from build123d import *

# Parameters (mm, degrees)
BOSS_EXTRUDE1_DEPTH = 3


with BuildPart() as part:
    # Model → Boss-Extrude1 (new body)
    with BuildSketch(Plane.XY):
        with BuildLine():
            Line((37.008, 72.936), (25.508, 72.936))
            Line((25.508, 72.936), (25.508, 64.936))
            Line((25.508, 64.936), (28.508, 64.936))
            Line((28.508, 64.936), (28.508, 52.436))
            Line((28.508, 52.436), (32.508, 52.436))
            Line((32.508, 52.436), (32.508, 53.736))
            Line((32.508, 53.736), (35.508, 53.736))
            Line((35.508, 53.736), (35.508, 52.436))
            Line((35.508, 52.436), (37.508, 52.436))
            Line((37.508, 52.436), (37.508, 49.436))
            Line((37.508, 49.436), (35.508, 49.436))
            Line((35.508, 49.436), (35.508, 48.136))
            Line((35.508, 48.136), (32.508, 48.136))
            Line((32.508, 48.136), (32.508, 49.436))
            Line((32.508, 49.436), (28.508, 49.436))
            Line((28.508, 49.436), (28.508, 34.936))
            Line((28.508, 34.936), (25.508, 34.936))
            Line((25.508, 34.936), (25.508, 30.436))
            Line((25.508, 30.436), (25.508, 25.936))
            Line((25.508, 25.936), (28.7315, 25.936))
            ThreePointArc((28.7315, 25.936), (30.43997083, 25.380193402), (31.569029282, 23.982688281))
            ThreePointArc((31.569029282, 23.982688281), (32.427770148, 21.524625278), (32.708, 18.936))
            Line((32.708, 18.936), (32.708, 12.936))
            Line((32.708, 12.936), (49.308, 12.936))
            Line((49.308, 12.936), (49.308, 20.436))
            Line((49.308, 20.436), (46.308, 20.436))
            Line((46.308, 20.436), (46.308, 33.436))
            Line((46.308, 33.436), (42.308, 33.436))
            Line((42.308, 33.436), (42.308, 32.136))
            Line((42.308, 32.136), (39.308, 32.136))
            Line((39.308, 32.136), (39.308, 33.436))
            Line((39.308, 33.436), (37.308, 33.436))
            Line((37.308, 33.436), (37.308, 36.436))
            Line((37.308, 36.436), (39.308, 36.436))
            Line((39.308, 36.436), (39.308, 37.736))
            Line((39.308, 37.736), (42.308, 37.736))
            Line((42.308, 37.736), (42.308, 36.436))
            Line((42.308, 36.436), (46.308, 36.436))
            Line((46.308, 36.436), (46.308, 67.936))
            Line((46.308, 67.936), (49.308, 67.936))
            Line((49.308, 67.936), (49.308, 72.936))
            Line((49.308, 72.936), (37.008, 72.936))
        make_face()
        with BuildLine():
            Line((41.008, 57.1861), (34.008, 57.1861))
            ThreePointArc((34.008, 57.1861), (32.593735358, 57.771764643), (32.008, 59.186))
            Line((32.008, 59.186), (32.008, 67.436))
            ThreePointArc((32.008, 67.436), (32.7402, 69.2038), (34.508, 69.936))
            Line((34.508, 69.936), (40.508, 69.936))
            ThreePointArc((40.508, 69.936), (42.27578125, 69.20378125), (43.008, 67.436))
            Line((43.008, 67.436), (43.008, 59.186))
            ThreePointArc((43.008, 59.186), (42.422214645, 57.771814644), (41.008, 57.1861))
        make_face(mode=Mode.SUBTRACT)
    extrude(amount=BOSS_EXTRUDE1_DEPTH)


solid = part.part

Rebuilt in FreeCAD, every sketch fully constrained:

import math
import FreeCAD as App
import Part
import Sketcher

doc = App.newDocument("Part")
params = doc.addObject("Spreadsheet::Sheet", "Params")
for row, (alias, value) in enumerate([
    ("sketch1_width", "3 mm"),
    ("sketch1_width2", "4 mm"),
    ("sketch1_width3", "2 mm"),
    ("sketch1_width4", "7 mm"),
    ("sketch1_width5", "6 mm"),
    ("pad1_length", "3 mm"),
], start=1):
    params.set(f"A{row}", alias)
    params.set(f"B{row}", "=" + value)
    params.setAlias(f"B{row}", alias)

body = doc.addObject("PartDesign::Body", "Body")

sketch1 = body.newObject("Sketcher::SketchObject", "Sketch")
sketch1.AttachmentSupport = (doc.getObject("XY_Plane"), [""])
sketch1.MapMode = "FlatFace"
sketch1.addGeometry(Part.LineSegment(App.Vector(25.5, 72.9, 0), App.Vector(25.5, 64.9, 0)), False)
sketch1.addGeometry(Part.LineSegment(App.Vector(25.5, 64.9, 0), App.Vector(28.5, 64.9, 0)), False)
sketch1.addGeometry(Part.LineSegment(App.Vector(28.5, 64.9, 0), App.Vector(28.5, 52.4, 0)), False)
sketch1.addGeometry(Part.LineSegment(App.Vector(28.5, 52.4, 0), App.Vector(32.5, 52.4, 0)), False)
sketch1.addGeometry(Part.LineSegment(App.Vector(32.5, 52.4, 0), App.Vector(32.5, 53.7, 0)), False)
sketch1.addGeometry(Part.LineSegment(App.Vector(32.5, 53.7, 0), App.Vector(35.5, 53.7, 0)), False)
sketch1.addGeometry(Part.LineSegment(App.Vector(35.5, 53.7, 0), App.Vector(35.5, 52.4, 0)), False)
sketch1.addGeometry(Part.LineSegment(App.Vector(35.5, 52.4, 0), App.Vector(37.5, 52.4, 0)), False)
sketch1.addGeometry(Part.LineSegment(App.Vector(37.5, 52.4, 0), App.Vector(37.5, 49.4, 0)), False)
sketch1.addGeometry(Part.LineSegment(App.Vector(37.5, 49.4, 0), App.Vector(35.5, 49.4, 0)), False)
sketch1.addGeometry(Part.LineSegment(App.Vector(35.5, 49.4, 0), App.Vector(35.5, 48.1, 0)), False)
sketch1.addGeometry(Part.LineSegment(App.Vector(35.5, 48.1, 0), App.Vector(32.5, 48.1, 0)), False)
sketch1.addGeometry(Part.LineSegment(App.Vector(32.5, 48.1, 0), App.Vector(32.5, 49.4, 0)), False)
sketch1.addGeometry(Part.LineSegment(App.Vector(32.5, 49.4, 0), App.Vector(28.5, 49.4, 0)), False)
sketch1.addGeometry(Part.LineSegment(App.Vector(28.5, 49.4, 0), App.Vector(28.5, 34.9, 0)), False)
sketch1.addGeometry(Part.LineSegment(App.Vector(28.5, 34.9, 0), App.Vector(25.5, 34.9, 0)), False)
sketch1.addGeometry(Part.LineSegment(App.Vector(25.5, 34.9, 0), App.Vector(25.5, 25.9, 0)), False)
sketch1.addGeometry(Part.LineSegment(App.Vector(25.5, 25.9, 0), App.Vector(28.7, 25.9, 0)), False)
sketch1.addGeometry(Part.ArcOfCircle(Part.Circle(App.Vector(28.6, 22.8, 0), App.Vector(0, 0, 1), 3.2), math.radians(22), math.radians(89)), False)
sketch1.addGeometry(Part.ArcOfCircle(Part.Circle(App.Vector(21.3, 19, 0), App.Vector(0, 0, 1), 11.4), math.radians(0), math.radians(26)), False)
sketch1.addGeometry(Part.LineSegment(App.Vector(32.7, 18.9, 0), App.Vector(32.7, 12.9, 0)), False)
sketch1.addGeometry(Part.LineSegment(App.Vector(32.7, 12.9, 0), App.Vector(49.3, 12.9, 0)), False)
sketch1.addGeometry(Part.LineSegment(App.Vector(49.3, 12.9, 0), App.Vector(49.3, 20.4, 0)), False)
sketch1.addGeometry(Part.LineSegment(App.Vector(49.3, 20.4, 0), App.Vector(46.3, 20.4, 0)), False)
sketch1.addGeometry(Part.LineSegment(App.Vector(46.3, 20.4, 0), App.Vector(46.3, 33.4, 0)), False)
sketch1.addGeometry(Part.LineSegment(App.Vector(46.3, 33.4, 0), App.Vector(42.3, 33.4, 0)), False)
sketch1.addGeometry(Part.LineSegment(App.Vector(42.3, 33.4, 0), App.Vector(42.3, 32.1, 0)), False)
sketch1.addGeometry(Part.LineSegment(App.Vector(42.3, 32.1, 0), App.Vector(39.3, 32.1, 0)), False)
sketch1.addGeometry(Part.LineSegment(App.Vector(39.3, 32.1, 0), App.Vector(39.3, 33.4, 0)), False)
sketch1.addGeometry(Part.LineSegment(App.Vector(39.3, 33.4, 0), App.Vector(37.3, 33.4, 0)), False)
sketch1.addGeometry(Part.LineSegment(App.Vector(37.3, 33.4, 0), App.Vector(37.3, 36.4, 0)), False)
sketch1.addGeometry(Part.LineSegment(App.Vector(37.3, 36.4, 0), App.Vector(39.3, 36.4, 0)), False)
sketch1.addGeometry(Part.LineSegment(App.Vector(39.3, 36.4, 0), App.Vector(39.3, 37.7, 0)), False)
sketch1.addGeometry(Part.LineSegment(App.Vector(39.3, 37.7, 0), App.Vector(42.3, 37.7, 0)), False)
sketch1.addGeometry(Part.LineSegment(App.Vector(42.3, 37.7, 0), App.Vector(42.3, 36.4, 0)), False)
sketch1.addGeometry(Part.LineSegment(App.Vector(42.3, 36.4, 0), App.Vector(46.3, 36.4, 0)), False)
sketch1.addGeometry(Part.LineSegment(App.Vector(46.3, 36.4, 0), App.Vector(46.3, 67.9, 0)), False)
sketch1.addGeometry(Part.LineSegment(App.Vector(46.3, 67.9, 0), App.Vector(49.3, 67.9, 0)), False)
sketch1.addGeometry(Part.LineSegment(App.Vector(49.3, 67.9, 0), App.Vector(49.3, 72.9, 0)), False)
sketch1.addGeometry(Part.LineSegment(App.Vector(49.3, 72.9, 0), App.Vector(25.5, 72.9, 0)), False)
sketch1.addGeometry(Part.ArcOfCircle(Part.Circle(App.Vector(41, 59.2, 0), App.Vector(0, 0, 1), 2), math.radians(-90), math.radians(0)), False)
sketch1.addGeometry(Part.LineSegment(App.Vector(41, 57.2, 0), App.Vector(34, 57.2, 0)), False)
sketch1.addGeometry(Part.ArcOfCircle(Part.Circle(App.Vector(34, 59.2, 0), App.Vector(0, 0, 1), 2), math.radians(180), math.radians(270)), False)
sketch1.addGeometry(Part.LineSegment(App.Vector(32, 59.2, 0), App.Vector(32, 67.4, 0)), False)
sketch1.addGeometry(Part.ArcOfCircle(Part.Circle(App.Vector(34.5, 67.4, 0), App.Vector(0, 0, 1), 2.5), math.radians(90), math.radians(180)), False)
sketch1.addGeometry(Part.LineSegment(App.Vector(34.5, 69.9, 0), App.Vector(40.5, 69.9, 0)), False)
sketch1.addGeometry(Part.ArcOfCircle(Part.Circle(App.Vector(40.5, 67.4, 0), App.Vector(0, 0, 1), 2.5), math.radians(0), math.radians(90)), False)
sketch1.addGeometry(Part.LineSegment(App.Vector(43, 67.4, 0), App.Vector(43, 59.2, 0)), False)
sketch1.addConstraint(Sketcher.Constraint("Coincident", 0, 2, 1, 1))
sketch1.addConstraint(Sketcher.Constraint("Coincident", 1, 2, 2, 1))
sketch1.addConstraint(Sketcher.Constraint("Coincident", 2, 2, 3, 1))
sketch1.addConstraint(Sketcher.Constraint("Coincident", 3, 2, 4, 1))
sketch1.addConstraint(Sketcher.Constraint("Coincident", 4, 2, 5, 1))
sketch1.addConstraint(Sketcher.Constraint("Coincident", 5, 2, 6, 1))
sketch1.addConstraint(Sketcher.Constraint("Coincident", 6, 2, 7, 1))
sketch1.addConstraint(Sketcher.Constraint("Coincident", 7, 2, 8, 1))
sketch1.addConstraint(Sketcher.Constraint("Coincident", 8, 2, 9, 1))
sketch1.addConstraint(Sketcher.Constraint("Coincident", 9, 2, 10, 1))
sketch1.addConstraint(Sketcher.Constraint("Coincident", 10, 2, 11, 1))
sketch1.addConstraint(Sketcher.Constraint("Coincident", 11, 2, 12, 1))
sketch1.addConstraint(Sketcher.Constraint("Coincident", 12, 2, 13, 1))
sketch1.addConstraint(Sketcher.Constraint("Coincident", 13, 2, 14, 1))
sketch1.addConstraint(Sketcher.Constraint("Coincident", 14, 2, 15, 1))
sketch1.addConstraint(Sketcher.Constraint("Coincident", 15, 2, 16, 1))
sketch1.addConstraint(Sketcher.Constraint("Coincident", 16, 2, 17, 1))
sketch1.addConstraint(Sketcher.Constraint("Coincident", 17, 2, 18, 2))
sketch1.addConstraint(Sketcher.Constraint("Coincident", 18, 1, 19, 2))
sketch1.addConstraint(Sketcher.Constraint("Coincident", 19, 1, 20, 1))
sketch1.addConstraint(Sketcher.Constraint("Coincident", 20, 2, 21, 1))
sketch1.addConstraint(Sketcher.Constraint("Coincident", 21, 2, 22, 1))
sketch1.addConstraint(Sketcher.Constraint("Coincident", 22, 2, 23, 1))
sketch1.addConstraint(Sketcher.Constraint("Coincident", 23, 2, 24, 1))
sketch1.addConstraint(Sketcher.Constraint("Coincident", 24, 2, 25, 1))
sketch1.addConstraint(Sketcher.Constraint("Coincident", 25, 2, 26, 1))
sketch1.addConstraint(Sketcher.Constraint("Coincident", 26, 2, 27, 1))
sketch1.addConstraint(Sketcher.Constraint("Coincident", 27, 2, 28, 1))
sketch1.addConstraint(Sketcher.Constraint("Coincident", 28, 2, 29, 1))
sketch1.addConstraint(Sketcher.Constraint("Coincident", 29, 2, 30, 1))
sketch1.addConstraint(Sketcher.Constraint("Coincident", 30, 2, 31, 1))
sketch1.addConstraint(Sketcher.Constraint("Coincident", 31, 2, 32, 1))
sketch1.addConstraint(Sketcher.Constraint("Coincident", 32, 2, 33, 1))
sketch1.addConstraint(Sketcher.Constraint("Coincident", 33, 2, 34, 1))
sketch1.addConstraint(Sketcher.Constraint("Coincident", 34, 2, 35, 1))
sketch1.addConstraint(Sketcher.Constraint("Coincident", 35, 2, 36, 1))
sketch1.addConstraint(Sketcher.Constraint("Coincident", 36, 2, 37, 1))
sketch1.addConstraint(Sketcher.Constraint("Coincident", 37, 2, 38, 1))
sketch1.addConstraint(Sketcher.Constraint("Coincident", 38, 2, 39, 1))
sketch1.addConstraint(Sketcher.Constraint("Coincident", 39, 2, 0, 1))
sketch1.addConstraint(Sketcher.Constraint("Coincident", 40, 1, 41, 1))
sketch1.addConstraint(Sketcher.Constraint("Coincident", 41, 2, 42, 2))
sketch1.addConstraint(Sketcher.Constraint("Coincident", 42, 1, 43, 1))
sketch1.addConstraint(Sketcher.Constraint("Coincident", 43, 2, 44, 2))
sketch1.addConstraint(Sketcher.Constraint("Coincident", 44, 1, 45, 1))
sketch1.addConstraint(Sketcher.Constraint("Coincident", 45, 2, 46, 2))
sketch1.addConstraint(Sketcher.Constraint("Coincident", 46, 1, 47, 1))
sketch1.addConstraint(Sketcher.Constraint("Coincident", 47, 2, 40, 2))
sketch1.addConstraint(Sketcher.Constraint("Vertical", 0))
sketch1.addConstraint(Sketcher.Constraint("Horizontal", 1))
sketch1.addConstraint(Sketcher.Constraint("Vertical", 2))
sketch1.addConstraint(Sketcher.Constraint("Horizontal", 3))
sketch1.addConstraint(Sketcher.Constraint("Vertical", 4))
sketch1.addConstraint(Sketcher.Constraint("Horizontal", 5))
sketch1.addConstraint(Sketcher.Constraint("Vertical", 6))
sketch1.addConstraint(Sketcher.Constraint("Horizontal", 7))
sketch1.addConstraint(Sketcher.Constraint("Vertical", 8))
sketch1.addConstraint(Sketcher.Constraint("Horizontal", 9))
sketch1.addConstraint(Sketcher.Constraint("Vertical", 10))
sketch1.addConstraint(Sketcher.Constraint("Horizontal", 11))
sketch1.addConstraint(Sketcher.Constraint("Vertical", 12))
sketch1.addConstraint(Sketcher.Constraint("Horizontal", 13))
sketch1.addConstraint(Sketcher.Constraint("Vertical", 14))
sketch1.addConstraint(Sketcher.Constraint("Horizontal", 15))
sketch1.addConstraint(Sketcher.Constraint("Vertical", 16))
sketch1.addConstraint(Sketcher.Constraint("Horizontal", 17))
sketch1.addConstraint(Sketcher.Constraint("Vertical", 20))
sketch1.addConstraint(Sketcher.Constraint("Horizontal", 21))
sketch1.addConstraint(Sketcher.Constraint("Vertical", 22))
sketch1.addConstraint(Sketcher.Constraint("Horizontal", 23))
sketch1.addConstraint(Sketcher.Constraint("Vertical", 24))
sketch1.addConstraint(Sketcher.Constraint("Horizontal", 25))
sketch1.addConstraint(Sketcher.Constraint("Vertical", 26))
sketch1.addConstraint(Sketcher.Constraint("Horizontal", 27))
sketch1.addConstraint(Sketcher.Constraint("Vertical", 28))
sketch1.addConstraint(Sketcher.Constraint("Horizontal", 29))
sketch1.addConstraint(Sketcher.Constraint("Vertical", 30))
sketch1.addConstraint(Sketcher.Constraint("Horizontal", 31))
sketch1.addConstraint(Sketcher.Constraint("Vertical", 32))
sketch1.addConstraint(Sketcher.Constraint("Horizontal", 33))
sketch1.addConstraint(Sketcher.Constraint("Vertical", 34))
sketch1.addConstraint(Sketcher.Constraint("Horizontal", 35))
sketch1.addConstraint(Sketcher.Constraint("Vertical", 36))
sketch1.addConstraint(Sketcher.Constraint("Horizontal", 37))
sketch1.addConstraint(Sketcher.Constraint("Vertical", 38))
sketch1.addConstraint(Sketcher.Constraint("Horizontal", 39))
sketch1.addConstraint(Sketcher.Constraint("Horizontal", 41))
sketch1.addConstraint(Sketcher.Constraint("Vertical", 43))
sketch1.addConstraint(Sketcher.Constraint("Horizontal", 45))
sketch1.addConstraint(Sketcher.Constraint("Vertical", 47))
sketch1.addConstraint(Sketcher.Constraint("Horizontal", 3, 2, 6, 2))
sketch1.addConstraint(Sketcher.Constraint("Horizontal", 9, 2, 12, 2))
sketch1.addConstraint(Sketcher.Constraint("Horizontal", 25, 2, 28, 2))
sketch1.addConstraint(Sketcher.Constraint("Horizontal", 31, 2, 34, 2))
sketch1.addConstraint(Sketcher.Constraint("Horizontal", 43, 2, 46, 1))
sketch1.addConstraint(Sketcher.Constraint("Horizontal", 42, 1, 47, 2))
sketch1.addConstraint(Sketcher.Constraint("Vertical", 6, 2, 9, 2))
sketch1.addConstraint(Sketcher.Constraint("Vertical", 4, 2, 11, 2))
sketch1.addConstraint(Sketcher.Constraint("Vertical", 2, 2, 13, 2))
sketch1.addConstraint(Sketcher.Constraint("Vertical", 0, 2, 15, 2))
sketch1.addConstraint(Sketcher.Constraint("Vertical", 28, 2, 31, 2))
sketch1.addConstraint(Sketcher.Constraint("Vertical", 26, 2, 33, 2))
sketch1.addConstraint(Sketcher.Constraint("Vertical", 24, 2, 35, 2))
sketch1.addConstraint(Sketcher.Constraint("Vertical", 22, 2, 37, 2))
sketch1.addConstraint(Sketcher.Constraint("Equal", 1, 5))
sketch1.addConstraint(Sketcher.Constraint("Equal", 15, 23))
sketch1.addConstraint(Sketcher.Constraint("Equal", 13, 25))
sketch1.addConstraint(Sketcher.Constraint("Equal", 23, 27))
sketch1.addConstraint(Sketcher.Constraint("Equal", 9, 29))
sketch1.addConstraint(Sketcher.Constraint("Equal", 37, 8))
sketch1.addConstraint(Sketcher.Constraint("Equal", 6, 10))
sketch1.addConstraint(Sketcher.Constraint("Equal", 45, 20))
sketch1.addConstraint(Sketcher.Constraint("Equal", 12, 26))
sketch1.addConstraint(Sketcher.Constraint("Equal", 8, 30))
sketch1.addConstraint(Sketcher.Constraint("Equal", 28, 32))
sketch1.addConstraint(Sketcher.Constraint("DistanceX", 1, 1, 1, 2, 3.0))
sketch1.addConstraint(Sketcher.Constraint("DistanceX", 3, 1, 3, 2, 4.0))
sketch1.addConstraint(Sketcher.Constraint("DistanceX", 7, 1, 7, 2, 2.0))
sketch1.addConstraint(Sketcher.Constraint("DistanceX", 41, 2, 41, 1, 7.0))
sketch1.addConstraint(Sketcher.Constraint("DistanceX", 45, 1, 45, 2, 6.0))
sketch1.addConstraint(Sketcher.Constraint("DistanceY", 0, 2, 0, 1, 8.0))
sketch1.addConstraint(Sketcher.Constraint("DistanceY", 16, 2, 16, 1, 9.0))
sketch1.addConstraint(Sketcher.Constraint("DistanceY", 24, 1, 24, 2, 13.0))
sketch1.addConstraint(Sketcher.Constraint("DistanceY", 38, 1, 38, 2, 5.0))
sketch1.addConstraint(Sketcher.Constraint("DistanceX", 21, 1, 21, 2, 16.6))
sketch1.addConstraint(Sketcher.Constraint("DistanceX", 39, 2, 39, 1, 23.8))
sketch1.addConstraint(Sketcher.Constraint("DistanceY", 2, 2, 2, 1, 12.5))
sketch1.addConstraint(Sketcher.Constraint("DistanceY", 4, 1, 4, 2, 1.3))
sketch1.addConstraint(Sketcher.Constraint("DistanceY", 14, 2, 14, 1, 14.5))
sketch1.addConstraint(Sketcher.Constraint("DistanceY", 22, 1, 22, 2, 7.5))
sketch1.addConstraint(Sketcher.Constraint("DistanceY", 36, 1, 36, 2, 31.5))
sketch1.addConstraint(Sketcher.Constraint("DistanceX", 42, 1, 41, 2, 2.0))
sketch1.addConstraint(Sketcher.Constraint("DistanceX", 1, 2, 44, 1, 6.0))
sketch1.addConstraint(Sketcher.Constraint("DistanceY", 1, 2, 44, 1, 5.0))
sketch1.addConstraint(Sketcher.Constraint("DistanceX", 40, 1, 47, 2, 2.0))
sketch1.addConstraint(Sketcher.Constraint("DistanceY", 43, 1, 43, 2, 8.25))
sketch1.addConstraint(Sketcher.Constraint("DistanceX", 7, 2, 40, 1, 3.5))
sketch1.addConstraint(Sketcher.Constraint("DistanceY", 1, 2, 43, 2, 2.5))
sketch1.addConstraint(Sketcher.Constraint("Radius", 46, 2.499951))
sketch1.addConstraint(Sketcher.Constraint("DistanceX", 17, 1, 17, 2, 3.2235))
sketch1.addConstraint(Sketcher.Constraint("DistanceX", -1, 1, 0, 2, 25.508))
sketch1.addConstraint(Sketcher.Constraint("DistanceY", -1, 1, 0, 2, 64.936))
sketch1.addConstraint(Sketcher.Constraint("Radius", 18, 3.158778))
sketch1.addConstraint(Sketcher.Constraint("Radius", 19, 11.431384))
sketch1.addConstraint(Sketcher.Constraint("Radius", 40, 1.999876))
sketch1.addConstraint(Sketcher.Constraint("Radius", 42, 1.999705))
sketch1.addConstraint(Sketcher.Constraint("Radius", 44, 2.499887))
sketch1.addConstraint(Sketcher.Constraint("DistanceY", -1, 1, 40, 1, 57.1861))
sketch1.addConstraint(Sketcher.Constraint("DistanceY", 18, 3, 42, 3, 36.407502))
sketch1.addConstraint(Sketcher.Constraint("DistanceY", -1, 1, 19, 3, 19.008009))
sketch1.setExpression("Constraints[115]", "Params.sketch1_width")
sketch1.setExpression("Constraints[116]", "Params.sketch1_width2")
sketch1.setExpression("Constraints[117]", "Params.sketch1_width3")
sketch1.setExpression("Constraints[118]", "Params.sketch1_width4")
sketch1.setExpression("Constraints[119]", "Params.sketch1_width5")
pad1 = body.newObject("PartDesign::Pad", "Pad")
pad1.Profile = sketch1
pad1.setExpression("Length", "Params.pad1_length")

doc.recompute()
